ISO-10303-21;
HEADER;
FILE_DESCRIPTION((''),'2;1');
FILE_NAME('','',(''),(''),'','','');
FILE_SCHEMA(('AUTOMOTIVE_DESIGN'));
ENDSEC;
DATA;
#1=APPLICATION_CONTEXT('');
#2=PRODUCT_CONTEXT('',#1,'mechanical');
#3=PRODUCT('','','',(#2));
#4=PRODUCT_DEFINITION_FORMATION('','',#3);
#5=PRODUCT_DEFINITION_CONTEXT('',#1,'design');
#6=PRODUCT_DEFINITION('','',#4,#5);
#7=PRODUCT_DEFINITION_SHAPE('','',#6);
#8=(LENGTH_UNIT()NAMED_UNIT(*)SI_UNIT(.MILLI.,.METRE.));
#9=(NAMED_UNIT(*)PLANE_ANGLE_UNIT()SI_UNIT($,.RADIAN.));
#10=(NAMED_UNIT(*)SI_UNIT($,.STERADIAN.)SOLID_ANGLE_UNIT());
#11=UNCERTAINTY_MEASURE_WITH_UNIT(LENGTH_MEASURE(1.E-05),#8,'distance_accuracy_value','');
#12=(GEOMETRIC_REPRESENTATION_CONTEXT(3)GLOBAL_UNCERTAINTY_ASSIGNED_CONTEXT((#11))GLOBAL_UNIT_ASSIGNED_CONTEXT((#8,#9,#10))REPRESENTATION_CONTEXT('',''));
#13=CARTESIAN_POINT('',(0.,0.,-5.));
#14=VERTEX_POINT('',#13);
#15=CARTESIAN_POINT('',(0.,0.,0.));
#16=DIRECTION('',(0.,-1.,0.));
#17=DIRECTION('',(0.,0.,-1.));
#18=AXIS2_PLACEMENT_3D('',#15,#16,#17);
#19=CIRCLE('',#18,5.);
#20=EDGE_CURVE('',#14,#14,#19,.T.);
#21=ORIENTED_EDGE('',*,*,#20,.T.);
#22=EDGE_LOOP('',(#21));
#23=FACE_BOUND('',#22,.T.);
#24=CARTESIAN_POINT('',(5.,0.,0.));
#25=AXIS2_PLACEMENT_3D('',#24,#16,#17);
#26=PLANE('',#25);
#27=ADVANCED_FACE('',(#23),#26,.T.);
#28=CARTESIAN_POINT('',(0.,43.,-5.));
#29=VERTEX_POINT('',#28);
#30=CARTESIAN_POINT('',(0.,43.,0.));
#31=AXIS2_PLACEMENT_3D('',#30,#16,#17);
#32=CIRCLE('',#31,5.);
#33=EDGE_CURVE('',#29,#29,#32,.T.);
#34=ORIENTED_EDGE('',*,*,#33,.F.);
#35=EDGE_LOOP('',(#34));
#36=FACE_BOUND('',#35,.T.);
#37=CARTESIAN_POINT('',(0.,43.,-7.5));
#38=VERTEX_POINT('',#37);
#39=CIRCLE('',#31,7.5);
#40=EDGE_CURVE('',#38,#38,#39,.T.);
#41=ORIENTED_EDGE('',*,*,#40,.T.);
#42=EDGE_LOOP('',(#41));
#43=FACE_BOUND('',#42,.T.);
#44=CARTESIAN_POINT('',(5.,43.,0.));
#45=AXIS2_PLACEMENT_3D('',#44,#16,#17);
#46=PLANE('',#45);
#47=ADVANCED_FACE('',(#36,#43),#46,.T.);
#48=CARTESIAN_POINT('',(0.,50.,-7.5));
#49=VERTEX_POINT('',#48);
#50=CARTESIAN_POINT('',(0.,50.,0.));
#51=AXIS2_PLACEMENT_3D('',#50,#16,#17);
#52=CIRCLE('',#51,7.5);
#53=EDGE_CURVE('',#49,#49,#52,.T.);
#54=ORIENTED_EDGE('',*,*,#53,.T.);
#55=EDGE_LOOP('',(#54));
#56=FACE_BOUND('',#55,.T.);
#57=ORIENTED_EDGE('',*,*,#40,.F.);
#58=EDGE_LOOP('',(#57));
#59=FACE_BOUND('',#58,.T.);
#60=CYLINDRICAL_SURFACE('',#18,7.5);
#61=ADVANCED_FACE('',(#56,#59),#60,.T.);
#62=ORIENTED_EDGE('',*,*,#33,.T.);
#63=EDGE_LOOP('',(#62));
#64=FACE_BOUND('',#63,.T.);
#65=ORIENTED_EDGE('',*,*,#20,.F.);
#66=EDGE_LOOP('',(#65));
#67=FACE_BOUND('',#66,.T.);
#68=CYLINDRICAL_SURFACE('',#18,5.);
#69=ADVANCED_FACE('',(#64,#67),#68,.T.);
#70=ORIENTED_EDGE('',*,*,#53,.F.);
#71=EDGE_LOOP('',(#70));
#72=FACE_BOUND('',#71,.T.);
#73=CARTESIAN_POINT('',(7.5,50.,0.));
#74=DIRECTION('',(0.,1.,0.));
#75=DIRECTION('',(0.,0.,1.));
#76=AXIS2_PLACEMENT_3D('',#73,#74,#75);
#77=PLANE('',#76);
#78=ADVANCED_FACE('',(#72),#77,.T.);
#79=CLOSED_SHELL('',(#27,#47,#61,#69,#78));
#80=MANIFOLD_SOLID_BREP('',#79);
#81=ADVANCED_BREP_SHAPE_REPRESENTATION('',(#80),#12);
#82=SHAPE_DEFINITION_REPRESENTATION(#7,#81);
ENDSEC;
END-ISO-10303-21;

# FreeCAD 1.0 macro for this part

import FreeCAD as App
import Part
import Sketcher

V = App.Vector
Q = App.Units.Quantity


def add_polygon(sketch, points):
    """Adds a closed chain of lines whose ends are joined by coincident constraints."""
    first, n = sketch.GeometryCount, len(points)
    for a, b in zip(points, points[1:] + points[:1]):
        sketch.addGeometry(Part.LineSegment(App.Vector(*a, 0), App.Vector(*b, 0)), False)
    for i in range(n):
        sketch.addConstraint(Sketcher.Constraint("Coincident", first + i, 2, first + (i + 1) % n, 1))

doc = App.newDocument("Part")
body = doc.addObject("PartDesign::Body", "Body")

sketch1 = doc.addObject("Sketcher::SketchObject", "Sketch")
body.addObject(sketch1)
sketch1.AttachmentSupport = (doc.XY_Plane, [""])
sketch1.MapMode = "FlatFace"
add_polygon(sketch1, [(5, 0), (5, 43), (7.5, 43), (7.5, 50), (0, 50), (0, 0)])
sketch1.addConstraint([
    Sketcher.Constraint("Vertical", 0),
    Sketcher.Constraint("Horizontal", 1),
    Sketcher.Constraint("Vertical", 2),
    Sketcher.Constraint("Horizontal", 3),
    Sketcher.Constraint("Vertical", 4),
    Sketcher.Constraint("Horizontal", 5),
    Sketcher.Constraint("Coincident", 4, 2, -1, 1),
    Sketcher.Constraint("DistanceX", 5, 1, 5, 2, Q("5 mm")),
    Sketcher.Constraint("DistanceY", 0, 1, 0, 2, Q("43 mm")),
    Sketcher.Constraint("DistanceY", 2, 1, 2, 2, Q("7 mm")),
    Sketcher.Constraint("DistanceX", 1, 1, 1, 2, Q("2.5 mm")),
])
revolution = doc.addObject("PartDesign::Revolution", "Revolution")
body.addObject(revolution)
revolution.Profile = sketch1
revolution.ReferenceAxis = (sketch1, ["V_Axis"])
revolution.Angle = 360

doc.recompute()
